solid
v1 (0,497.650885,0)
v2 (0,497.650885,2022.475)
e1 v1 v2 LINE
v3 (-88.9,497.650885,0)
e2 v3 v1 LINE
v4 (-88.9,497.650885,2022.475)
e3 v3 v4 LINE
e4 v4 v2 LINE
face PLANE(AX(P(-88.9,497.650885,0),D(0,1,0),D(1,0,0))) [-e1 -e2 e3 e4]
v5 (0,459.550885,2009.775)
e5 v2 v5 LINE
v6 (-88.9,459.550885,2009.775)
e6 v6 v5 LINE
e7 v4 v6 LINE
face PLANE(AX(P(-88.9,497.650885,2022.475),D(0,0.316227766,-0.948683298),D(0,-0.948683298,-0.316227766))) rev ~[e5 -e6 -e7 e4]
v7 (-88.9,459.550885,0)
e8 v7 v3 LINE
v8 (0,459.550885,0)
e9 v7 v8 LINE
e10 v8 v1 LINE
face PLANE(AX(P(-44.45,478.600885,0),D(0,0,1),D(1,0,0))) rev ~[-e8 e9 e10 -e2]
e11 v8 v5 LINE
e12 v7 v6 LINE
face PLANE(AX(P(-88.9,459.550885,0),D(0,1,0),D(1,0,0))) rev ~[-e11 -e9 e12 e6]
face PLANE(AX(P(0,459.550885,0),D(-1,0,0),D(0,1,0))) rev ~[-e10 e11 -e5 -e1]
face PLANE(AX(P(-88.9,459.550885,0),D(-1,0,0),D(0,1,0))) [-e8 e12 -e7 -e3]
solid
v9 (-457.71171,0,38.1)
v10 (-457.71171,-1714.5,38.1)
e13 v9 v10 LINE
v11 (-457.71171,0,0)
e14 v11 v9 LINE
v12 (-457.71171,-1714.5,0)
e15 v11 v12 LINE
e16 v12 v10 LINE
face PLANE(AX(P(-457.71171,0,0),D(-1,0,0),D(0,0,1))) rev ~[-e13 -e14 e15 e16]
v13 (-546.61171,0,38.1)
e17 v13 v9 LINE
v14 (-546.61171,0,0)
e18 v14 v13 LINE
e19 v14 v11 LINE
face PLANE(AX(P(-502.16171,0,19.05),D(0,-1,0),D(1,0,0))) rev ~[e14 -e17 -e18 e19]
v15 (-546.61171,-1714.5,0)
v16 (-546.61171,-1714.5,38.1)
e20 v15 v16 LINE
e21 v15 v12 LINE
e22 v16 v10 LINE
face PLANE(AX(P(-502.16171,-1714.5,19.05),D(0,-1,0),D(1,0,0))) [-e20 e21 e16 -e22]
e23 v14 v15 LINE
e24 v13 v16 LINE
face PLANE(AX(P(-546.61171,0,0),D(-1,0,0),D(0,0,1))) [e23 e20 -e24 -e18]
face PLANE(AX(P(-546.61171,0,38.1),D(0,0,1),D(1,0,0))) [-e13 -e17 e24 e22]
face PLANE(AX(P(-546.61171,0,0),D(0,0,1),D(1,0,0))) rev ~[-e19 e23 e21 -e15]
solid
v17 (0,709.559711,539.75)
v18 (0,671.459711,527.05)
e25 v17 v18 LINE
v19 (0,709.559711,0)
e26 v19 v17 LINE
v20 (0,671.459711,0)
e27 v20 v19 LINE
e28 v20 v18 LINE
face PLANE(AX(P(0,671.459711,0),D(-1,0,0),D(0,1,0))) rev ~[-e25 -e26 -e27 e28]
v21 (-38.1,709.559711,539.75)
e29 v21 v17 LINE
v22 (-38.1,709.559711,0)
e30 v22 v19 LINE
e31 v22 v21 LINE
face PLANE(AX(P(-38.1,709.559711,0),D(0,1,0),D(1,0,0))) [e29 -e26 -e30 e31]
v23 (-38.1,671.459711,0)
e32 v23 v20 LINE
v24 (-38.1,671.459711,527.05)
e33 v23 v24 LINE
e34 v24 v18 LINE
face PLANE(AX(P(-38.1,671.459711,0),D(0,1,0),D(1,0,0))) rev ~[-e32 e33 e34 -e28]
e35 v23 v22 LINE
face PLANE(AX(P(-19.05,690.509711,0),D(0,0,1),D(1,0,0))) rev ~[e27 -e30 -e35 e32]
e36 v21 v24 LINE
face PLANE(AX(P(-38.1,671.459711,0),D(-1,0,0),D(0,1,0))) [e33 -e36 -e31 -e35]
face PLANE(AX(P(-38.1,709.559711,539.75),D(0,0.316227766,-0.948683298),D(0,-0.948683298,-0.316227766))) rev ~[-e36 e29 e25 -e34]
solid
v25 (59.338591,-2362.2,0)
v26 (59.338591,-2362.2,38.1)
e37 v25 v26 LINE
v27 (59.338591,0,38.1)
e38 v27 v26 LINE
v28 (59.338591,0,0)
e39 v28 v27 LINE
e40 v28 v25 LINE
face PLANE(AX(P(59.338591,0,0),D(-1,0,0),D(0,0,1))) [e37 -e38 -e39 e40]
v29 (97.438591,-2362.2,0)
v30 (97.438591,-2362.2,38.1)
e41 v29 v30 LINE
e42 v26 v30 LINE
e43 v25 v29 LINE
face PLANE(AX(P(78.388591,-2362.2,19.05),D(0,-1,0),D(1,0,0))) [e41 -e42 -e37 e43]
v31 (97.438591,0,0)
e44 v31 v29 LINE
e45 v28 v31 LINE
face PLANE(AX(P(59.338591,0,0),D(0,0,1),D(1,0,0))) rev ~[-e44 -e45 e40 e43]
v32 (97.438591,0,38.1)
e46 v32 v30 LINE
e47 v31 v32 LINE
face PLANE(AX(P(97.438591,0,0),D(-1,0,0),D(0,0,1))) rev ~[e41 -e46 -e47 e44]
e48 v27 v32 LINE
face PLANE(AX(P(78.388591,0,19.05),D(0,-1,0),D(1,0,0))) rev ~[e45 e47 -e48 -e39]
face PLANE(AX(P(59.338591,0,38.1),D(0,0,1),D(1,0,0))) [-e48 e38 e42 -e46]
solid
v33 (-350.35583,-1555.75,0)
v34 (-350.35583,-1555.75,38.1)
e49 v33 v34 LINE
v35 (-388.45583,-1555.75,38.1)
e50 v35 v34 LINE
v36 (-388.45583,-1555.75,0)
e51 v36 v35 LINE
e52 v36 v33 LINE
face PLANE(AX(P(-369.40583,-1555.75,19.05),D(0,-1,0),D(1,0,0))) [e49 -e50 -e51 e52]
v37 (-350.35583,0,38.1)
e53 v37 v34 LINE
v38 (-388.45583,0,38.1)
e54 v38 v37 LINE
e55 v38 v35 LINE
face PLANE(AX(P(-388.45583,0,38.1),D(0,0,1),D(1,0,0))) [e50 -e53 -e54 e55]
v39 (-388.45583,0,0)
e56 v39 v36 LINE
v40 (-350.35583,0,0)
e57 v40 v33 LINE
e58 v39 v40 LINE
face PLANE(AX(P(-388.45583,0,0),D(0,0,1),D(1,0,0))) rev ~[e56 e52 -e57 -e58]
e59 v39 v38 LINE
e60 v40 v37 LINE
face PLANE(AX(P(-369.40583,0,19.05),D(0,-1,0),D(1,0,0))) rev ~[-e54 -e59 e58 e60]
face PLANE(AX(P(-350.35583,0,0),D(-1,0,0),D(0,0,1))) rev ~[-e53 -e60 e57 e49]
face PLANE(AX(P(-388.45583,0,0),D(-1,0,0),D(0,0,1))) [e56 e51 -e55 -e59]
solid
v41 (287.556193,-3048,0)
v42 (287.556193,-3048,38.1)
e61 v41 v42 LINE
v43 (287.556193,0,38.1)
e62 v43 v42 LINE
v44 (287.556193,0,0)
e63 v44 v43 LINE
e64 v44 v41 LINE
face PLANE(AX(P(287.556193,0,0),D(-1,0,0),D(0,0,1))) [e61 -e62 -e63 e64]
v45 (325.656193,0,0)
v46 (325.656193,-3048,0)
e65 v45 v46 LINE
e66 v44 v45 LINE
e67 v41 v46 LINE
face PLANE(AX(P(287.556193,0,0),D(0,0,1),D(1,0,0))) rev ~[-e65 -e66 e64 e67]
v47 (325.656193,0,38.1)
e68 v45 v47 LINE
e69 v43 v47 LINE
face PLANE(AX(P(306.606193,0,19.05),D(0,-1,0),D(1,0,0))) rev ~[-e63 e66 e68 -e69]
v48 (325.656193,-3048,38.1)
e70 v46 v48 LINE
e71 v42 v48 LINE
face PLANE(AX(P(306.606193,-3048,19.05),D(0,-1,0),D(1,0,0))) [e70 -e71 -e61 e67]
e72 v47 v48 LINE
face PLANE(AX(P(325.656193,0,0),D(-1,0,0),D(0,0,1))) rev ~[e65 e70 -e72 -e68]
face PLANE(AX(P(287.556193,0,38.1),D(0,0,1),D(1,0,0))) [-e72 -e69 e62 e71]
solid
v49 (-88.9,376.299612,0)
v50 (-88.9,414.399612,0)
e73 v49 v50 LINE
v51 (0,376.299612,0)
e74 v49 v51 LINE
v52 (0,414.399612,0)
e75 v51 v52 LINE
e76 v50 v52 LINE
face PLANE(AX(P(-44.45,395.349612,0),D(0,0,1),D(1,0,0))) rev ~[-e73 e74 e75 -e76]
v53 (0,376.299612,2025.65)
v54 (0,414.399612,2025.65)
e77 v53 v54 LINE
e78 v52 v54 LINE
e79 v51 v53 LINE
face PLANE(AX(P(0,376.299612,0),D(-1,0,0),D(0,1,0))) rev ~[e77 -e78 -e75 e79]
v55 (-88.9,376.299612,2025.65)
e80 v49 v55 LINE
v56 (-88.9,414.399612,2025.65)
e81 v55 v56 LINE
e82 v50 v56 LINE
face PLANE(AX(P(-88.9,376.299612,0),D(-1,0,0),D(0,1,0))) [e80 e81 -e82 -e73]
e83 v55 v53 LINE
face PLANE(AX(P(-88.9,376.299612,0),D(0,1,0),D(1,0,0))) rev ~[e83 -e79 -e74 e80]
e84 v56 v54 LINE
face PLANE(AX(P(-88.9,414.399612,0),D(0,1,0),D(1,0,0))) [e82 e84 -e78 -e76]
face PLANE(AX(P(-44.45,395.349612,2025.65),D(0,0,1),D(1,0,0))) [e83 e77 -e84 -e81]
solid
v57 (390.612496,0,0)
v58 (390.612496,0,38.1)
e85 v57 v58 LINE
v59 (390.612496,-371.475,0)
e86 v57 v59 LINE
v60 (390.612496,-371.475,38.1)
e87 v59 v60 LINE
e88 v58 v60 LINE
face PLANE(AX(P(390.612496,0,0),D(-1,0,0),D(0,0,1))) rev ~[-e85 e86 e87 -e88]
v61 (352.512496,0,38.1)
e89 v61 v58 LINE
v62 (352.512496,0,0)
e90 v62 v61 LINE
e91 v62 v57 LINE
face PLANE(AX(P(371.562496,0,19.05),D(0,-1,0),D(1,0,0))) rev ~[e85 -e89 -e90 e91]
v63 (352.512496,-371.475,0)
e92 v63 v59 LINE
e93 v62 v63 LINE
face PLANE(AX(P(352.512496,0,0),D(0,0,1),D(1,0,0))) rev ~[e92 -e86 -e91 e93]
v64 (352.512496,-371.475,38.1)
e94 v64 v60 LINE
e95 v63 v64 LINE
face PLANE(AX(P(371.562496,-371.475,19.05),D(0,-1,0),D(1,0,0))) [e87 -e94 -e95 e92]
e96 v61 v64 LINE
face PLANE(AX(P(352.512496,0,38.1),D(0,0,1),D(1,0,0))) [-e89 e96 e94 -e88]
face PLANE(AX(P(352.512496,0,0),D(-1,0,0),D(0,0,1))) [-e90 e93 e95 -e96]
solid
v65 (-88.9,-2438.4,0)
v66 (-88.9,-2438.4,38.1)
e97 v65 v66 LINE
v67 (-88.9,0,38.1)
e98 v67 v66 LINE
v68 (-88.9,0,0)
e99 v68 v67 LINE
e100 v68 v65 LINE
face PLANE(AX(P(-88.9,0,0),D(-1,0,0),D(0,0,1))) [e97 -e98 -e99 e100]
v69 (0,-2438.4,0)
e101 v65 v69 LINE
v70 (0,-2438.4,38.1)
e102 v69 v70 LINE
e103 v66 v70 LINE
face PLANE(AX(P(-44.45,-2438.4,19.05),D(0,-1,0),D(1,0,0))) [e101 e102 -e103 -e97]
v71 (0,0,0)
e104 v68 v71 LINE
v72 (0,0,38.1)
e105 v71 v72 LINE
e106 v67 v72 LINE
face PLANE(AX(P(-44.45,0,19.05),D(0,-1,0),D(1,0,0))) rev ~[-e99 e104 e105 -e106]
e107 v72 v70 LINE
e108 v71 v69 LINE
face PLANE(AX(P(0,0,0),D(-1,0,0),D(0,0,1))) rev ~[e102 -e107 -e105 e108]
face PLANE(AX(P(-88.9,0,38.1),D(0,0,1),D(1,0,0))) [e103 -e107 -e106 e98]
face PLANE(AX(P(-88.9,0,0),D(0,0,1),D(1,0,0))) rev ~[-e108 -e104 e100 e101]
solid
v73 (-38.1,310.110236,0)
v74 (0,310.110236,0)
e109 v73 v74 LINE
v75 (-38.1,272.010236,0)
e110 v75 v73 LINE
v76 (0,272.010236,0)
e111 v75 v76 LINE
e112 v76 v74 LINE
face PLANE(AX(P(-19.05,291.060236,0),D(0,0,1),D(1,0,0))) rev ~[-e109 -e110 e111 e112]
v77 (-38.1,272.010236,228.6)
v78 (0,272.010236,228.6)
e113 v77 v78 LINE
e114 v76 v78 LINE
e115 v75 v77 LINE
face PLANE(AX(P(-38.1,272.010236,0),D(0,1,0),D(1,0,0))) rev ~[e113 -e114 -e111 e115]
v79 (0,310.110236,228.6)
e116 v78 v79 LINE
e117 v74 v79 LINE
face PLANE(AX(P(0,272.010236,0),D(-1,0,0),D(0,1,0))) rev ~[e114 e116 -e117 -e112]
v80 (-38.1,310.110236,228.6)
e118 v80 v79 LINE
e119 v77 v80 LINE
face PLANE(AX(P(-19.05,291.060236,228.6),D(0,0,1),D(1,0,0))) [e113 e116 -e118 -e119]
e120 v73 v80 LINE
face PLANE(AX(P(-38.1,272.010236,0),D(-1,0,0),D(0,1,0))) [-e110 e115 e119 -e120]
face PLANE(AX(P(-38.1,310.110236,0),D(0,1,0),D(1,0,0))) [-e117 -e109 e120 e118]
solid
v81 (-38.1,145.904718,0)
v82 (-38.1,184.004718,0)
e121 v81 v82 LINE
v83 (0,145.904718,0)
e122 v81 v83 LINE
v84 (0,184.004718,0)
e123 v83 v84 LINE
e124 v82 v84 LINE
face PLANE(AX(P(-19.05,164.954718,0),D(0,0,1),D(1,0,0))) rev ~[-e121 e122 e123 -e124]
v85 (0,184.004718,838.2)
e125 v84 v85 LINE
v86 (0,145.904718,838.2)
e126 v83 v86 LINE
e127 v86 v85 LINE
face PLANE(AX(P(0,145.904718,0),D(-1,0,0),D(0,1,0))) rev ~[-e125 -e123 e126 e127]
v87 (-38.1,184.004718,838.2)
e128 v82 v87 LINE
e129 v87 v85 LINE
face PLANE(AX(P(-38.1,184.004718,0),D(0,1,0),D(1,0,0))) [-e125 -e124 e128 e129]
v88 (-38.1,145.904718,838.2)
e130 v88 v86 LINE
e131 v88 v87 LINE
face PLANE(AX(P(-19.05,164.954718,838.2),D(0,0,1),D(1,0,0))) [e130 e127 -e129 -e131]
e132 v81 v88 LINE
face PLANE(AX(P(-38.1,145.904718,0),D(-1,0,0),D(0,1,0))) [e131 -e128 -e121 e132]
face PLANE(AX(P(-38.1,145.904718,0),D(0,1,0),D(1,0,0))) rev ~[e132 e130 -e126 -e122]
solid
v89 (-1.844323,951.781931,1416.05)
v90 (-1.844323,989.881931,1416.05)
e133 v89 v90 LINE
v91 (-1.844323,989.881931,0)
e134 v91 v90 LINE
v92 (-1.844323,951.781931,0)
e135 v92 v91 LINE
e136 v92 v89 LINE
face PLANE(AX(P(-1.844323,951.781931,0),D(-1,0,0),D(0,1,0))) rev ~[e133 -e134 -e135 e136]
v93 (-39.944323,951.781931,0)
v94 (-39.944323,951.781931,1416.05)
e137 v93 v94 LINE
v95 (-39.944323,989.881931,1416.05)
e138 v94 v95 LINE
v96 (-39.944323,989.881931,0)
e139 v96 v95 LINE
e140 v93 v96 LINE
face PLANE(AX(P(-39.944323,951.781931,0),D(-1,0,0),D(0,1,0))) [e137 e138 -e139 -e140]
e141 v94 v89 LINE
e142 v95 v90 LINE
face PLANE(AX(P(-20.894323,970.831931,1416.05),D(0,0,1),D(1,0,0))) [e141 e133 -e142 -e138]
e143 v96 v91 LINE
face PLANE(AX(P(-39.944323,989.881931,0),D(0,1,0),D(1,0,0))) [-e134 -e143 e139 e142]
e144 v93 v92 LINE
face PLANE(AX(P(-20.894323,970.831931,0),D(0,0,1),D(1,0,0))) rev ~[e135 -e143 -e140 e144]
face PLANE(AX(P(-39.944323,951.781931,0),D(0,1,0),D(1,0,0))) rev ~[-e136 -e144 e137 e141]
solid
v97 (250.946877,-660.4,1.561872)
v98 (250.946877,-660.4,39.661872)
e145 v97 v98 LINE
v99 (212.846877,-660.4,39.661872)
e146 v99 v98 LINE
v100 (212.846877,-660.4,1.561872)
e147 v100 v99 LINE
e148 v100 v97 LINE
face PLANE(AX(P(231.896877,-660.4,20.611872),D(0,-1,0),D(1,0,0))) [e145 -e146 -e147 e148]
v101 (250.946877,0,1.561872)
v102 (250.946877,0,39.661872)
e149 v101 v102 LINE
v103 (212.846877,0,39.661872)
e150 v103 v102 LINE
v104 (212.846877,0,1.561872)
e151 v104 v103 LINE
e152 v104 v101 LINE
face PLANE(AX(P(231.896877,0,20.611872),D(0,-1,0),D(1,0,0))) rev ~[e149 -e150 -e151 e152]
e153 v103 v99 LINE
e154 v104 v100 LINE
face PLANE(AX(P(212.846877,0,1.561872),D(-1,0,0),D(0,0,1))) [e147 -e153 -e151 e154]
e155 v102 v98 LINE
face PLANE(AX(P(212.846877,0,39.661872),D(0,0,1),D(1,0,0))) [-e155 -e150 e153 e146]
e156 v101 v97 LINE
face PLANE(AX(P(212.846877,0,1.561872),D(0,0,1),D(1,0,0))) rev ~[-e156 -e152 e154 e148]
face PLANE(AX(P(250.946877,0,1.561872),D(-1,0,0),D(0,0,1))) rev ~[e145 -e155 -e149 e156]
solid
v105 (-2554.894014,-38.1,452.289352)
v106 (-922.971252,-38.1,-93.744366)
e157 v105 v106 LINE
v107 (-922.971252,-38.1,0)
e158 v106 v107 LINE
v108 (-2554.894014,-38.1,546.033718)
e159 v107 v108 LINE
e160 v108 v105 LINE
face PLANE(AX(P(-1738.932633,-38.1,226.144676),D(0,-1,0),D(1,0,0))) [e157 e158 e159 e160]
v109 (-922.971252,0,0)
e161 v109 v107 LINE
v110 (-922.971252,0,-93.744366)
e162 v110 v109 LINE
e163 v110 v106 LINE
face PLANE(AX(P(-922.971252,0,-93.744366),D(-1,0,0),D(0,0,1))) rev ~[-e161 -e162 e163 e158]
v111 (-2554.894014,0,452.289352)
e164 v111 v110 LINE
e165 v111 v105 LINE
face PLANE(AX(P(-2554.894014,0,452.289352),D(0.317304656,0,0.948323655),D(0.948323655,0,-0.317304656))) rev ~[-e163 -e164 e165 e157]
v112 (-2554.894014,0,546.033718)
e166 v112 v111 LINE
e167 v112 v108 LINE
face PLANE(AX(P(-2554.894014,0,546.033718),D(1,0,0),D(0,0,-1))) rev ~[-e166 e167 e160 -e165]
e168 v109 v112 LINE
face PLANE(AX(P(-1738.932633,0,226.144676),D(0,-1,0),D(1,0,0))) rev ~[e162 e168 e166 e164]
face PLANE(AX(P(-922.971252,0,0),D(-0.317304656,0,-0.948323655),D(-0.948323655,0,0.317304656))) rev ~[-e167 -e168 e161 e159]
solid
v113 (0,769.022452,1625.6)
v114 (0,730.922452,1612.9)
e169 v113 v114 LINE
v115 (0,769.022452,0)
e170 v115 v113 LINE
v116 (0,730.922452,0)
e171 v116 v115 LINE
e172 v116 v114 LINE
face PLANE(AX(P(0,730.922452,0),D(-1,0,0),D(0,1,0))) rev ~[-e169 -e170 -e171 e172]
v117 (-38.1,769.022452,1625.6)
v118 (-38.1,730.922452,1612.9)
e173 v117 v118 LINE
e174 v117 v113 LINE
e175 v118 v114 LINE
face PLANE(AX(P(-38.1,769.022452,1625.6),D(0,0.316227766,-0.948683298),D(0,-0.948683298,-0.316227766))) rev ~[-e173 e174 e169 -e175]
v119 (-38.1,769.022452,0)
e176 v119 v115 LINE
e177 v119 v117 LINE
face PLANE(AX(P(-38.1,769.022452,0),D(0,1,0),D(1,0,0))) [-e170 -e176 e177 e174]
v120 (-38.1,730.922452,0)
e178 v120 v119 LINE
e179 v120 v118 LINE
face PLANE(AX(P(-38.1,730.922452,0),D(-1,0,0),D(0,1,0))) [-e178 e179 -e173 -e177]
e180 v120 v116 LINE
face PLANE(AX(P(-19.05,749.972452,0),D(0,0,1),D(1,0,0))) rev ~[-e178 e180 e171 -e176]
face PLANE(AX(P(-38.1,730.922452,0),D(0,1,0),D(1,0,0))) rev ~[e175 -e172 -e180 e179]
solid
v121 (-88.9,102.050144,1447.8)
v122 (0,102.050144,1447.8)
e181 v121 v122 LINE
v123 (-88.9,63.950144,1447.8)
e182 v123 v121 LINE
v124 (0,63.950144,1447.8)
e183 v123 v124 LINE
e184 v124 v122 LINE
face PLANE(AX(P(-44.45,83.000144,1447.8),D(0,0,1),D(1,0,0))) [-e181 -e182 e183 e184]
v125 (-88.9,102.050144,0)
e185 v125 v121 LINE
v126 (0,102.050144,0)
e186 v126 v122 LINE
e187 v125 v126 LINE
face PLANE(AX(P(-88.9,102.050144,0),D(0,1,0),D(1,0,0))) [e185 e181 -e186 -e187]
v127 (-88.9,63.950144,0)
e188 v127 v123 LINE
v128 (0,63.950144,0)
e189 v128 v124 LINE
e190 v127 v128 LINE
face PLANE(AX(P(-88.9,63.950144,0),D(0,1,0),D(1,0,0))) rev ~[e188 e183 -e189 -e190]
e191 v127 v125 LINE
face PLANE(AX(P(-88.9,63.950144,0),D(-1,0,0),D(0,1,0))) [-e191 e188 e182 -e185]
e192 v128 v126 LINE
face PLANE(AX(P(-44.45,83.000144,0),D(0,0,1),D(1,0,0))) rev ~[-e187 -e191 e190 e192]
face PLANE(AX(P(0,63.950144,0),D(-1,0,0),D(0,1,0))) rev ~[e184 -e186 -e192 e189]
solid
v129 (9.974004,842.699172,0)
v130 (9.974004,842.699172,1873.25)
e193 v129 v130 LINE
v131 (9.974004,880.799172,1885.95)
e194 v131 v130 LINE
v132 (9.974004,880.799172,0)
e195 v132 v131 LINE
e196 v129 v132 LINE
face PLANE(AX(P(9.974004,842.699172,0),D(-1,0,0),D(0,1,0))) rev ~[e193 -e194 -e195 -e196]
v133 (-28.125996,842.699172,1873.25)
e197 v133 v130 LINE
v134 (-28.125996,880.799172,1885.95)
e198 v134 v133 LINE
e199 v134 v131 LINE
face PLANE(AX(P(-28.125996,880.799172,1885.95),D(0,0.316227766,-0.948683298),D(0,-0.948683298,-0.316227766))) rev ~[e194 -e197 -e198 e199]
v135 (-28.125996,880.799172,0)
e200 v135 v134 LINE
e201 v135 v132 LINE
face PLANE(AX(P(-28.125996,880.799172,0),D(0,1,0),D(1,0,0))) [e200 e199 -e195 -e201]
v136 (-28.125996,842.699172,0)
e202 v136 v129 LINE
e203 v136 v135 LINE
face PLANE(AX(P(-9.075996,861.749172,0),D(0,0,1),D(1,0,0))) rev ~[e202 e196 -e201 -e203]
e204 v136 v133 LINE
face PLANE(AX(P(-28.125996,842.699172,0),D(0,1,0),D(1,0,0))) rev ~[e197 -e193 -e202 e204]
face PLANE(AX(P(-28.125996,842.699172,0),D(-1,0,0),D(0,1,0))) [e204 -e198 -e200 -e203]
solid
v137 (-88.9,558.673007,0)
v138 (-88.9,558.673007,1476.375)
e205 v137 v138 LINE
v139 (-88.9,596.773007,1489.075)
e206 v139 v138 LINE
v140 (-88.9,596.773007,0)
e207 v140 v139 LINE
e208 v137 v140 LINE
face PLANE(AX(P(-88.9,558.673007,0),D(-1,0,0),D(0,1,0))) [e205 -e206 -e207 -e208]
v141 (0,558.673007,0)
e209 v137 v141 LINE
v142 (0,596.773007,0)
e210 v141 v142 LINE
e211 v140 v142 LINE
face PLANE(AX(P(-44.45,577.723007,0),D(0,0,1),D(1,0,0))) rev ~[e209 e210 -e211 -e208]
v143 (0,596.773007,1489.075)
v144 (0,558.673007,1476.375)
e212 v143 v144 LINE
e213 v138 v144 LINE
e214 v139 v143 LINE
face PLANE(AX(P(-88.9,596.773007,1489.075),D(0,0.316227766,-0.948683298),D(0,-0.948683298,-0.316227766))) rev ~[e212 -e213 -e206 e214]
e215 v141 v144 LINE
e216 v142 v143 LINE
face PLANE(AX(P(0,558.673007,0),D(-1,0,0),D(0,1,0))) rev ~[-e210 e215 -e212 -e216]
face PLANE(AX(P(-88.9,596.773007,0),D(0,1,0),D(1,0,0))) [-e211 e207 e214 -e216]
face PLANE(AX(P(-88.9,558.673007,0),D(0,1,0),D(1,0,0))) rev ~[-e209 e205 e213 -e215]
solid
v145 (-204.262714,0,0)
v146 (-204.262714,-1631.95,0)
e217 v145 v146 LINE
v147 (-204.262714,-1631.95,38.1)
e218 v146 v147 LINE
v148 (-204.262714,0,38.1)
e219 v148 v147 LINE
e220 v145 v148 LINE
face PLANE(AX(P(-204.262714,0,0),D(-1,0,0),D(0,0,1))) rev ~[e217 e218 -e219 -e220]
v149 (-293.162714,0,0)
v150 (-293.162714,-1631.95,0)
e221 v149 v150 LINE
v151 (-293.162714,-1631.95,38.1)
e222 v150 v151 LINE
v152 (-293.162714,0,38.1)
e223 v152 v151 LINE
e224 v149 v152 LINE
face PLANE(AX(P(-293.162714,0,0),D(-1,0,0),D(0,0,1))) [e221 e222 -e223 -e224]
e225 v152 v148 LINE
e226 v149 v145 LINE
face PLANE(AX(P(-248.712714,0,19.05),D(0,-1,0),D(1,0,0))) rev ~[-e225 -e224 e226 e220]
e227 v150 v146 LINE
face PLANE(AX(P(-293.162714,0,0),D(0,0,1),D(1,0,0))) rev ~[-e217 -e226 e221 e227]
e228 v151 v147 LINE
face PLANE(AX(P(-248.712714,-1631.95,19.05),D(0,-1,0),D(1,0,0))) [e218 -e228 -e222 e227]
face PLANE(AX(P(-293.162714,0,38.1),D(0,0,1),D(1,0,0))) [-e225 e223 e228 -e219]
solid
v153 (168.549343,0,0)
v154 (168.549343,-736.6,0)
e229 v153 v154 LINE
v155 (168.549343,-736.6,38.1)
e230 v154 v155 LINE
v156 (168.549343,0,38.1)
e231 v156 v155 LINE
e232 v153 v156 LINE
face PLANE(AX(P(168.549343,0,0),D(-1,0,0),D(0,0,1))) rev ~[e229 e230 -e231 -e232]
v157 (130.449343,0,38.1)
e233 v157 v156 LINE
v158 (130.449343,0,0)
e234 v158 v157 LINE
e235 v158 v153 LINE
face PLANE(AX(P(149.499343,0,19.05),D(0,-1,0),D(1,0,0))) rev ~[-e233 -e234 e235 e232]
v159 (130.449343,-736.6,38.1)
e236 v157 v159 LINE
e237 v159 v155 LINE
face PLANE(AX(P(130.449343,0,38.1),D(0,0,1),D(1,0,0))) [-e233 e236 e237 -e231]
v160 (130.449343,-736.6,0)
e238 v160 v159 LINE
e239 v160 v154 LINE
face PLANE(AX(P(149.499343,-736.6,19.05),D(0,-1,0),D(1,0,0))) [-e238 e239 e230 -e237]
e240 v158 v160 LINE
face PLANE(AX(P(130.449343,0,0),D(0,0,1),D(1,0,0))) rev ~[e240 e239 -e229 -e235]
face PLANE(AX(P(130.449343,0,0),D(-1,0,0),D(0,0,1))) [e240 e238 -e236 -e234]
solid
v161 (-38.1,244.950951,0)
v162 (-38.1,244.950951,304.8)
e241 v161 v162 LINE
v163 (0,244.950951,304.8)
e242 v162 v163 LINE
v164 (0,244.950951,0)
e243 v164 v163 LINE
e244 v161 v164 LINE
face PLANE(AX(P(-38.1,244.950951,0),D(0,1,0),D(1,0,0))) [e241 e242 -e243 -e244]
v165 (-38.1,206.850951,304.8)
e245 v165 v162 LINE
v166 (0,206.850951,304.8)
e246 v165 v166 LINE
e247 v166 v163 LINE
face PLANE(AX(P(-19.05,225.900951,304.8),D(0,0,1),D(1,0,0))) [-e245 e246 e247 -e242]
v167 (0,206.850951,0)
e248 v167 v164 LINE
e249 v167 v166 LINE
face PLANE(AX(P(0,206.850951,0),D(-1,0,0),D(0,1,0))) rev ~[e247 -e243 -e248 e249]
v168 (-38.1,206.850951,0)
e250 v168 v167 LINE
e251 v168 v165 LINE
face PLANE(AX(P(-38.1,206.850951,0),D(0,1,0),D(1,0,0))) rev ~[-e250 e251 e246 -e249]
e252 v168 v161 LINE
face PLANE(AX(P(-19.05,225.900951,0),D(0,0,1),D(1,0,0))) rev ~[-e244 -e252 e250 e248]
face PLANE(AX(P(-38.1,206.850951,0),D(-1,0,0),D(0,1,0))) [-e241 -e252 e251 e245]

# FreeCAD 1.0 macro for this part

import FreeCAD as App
import Part
import Sketcher
from FreeCAD import Vector
Q = App.Units.Quantity


def add_polygon(sketch, points):
    """Adds a closed chain of lines whose ends are joined by coincident constraints."""
    first, n = sketch.GeometryCount, len(points)
    for a, b in zip(points, points[1:] + points[:1]):
        sketch.addGeometry(Part.LineSegment(App.Vector(*a, 0), App.Vector(*b, 0)), False)
    for i in range(n):
        sketch.addConstraint(Sketcher.Constraint("Coincident", first + i, 2, first + (i + 1) % n, 1))

doc = App.newDocument("Part")
body = doc.addObject("PartDesign::Body", "Body")

sketch1 = doc.addObject("Sketcher::SketchObject", "Sketch")
body.addObject(sketch1)
sketch1.AttachmentSupport = (doc.XZ_Plane, [""])
sketch1.MapMode = "FlatFace"
add_polygon(sketch1, [(-89, 38), (-89, 0), (0, 0), (0, 38)])
sketch1.addConstraint([
    Sketcher.Constraint("Vertical", 0),
    Sketcher.Constraint("Horizontal", 1),
    Sketcher.Constraint("Vertical", 2),
    Sketcher.Constraint("Horizontal", 3),
    Sketcher.Constraint("Coincident", 1, 2, -1, 1),
    Sketcher.Constraint("DistanceX", 1, 1, 1, 2, Q("3.5 in")),
    Sketcher.Constraint("DistanceY", 0, 2, 0, 1, Q("1.5 in")),
])
pad1 = doc.addObject("PartDesign::Pad", "Pad")
body.addObject(pad1)
pad1.Profile = sketch1
pad1.Length = Q("96 in")
body2 = doc.addObject("PartDesign::Body", "Body001")

sketch2 = doc.addObject("Sketcher::SketchObject", "Sketch001")
body2.addObject(sketch2)
sketch2.AttachmentSupport = (doc.getObject("XY_Plane001"), [""])
sketch2.MapMode = "FlatFace"
add_polygon(sketch2, [(-89, 102), (-89, 64), (0, 64), (0, 102)])
sketch2.addConstraint([
    Sketcher.Constraint("Vertical", 0),
    Sketcher.Constraint("Horizontal", 1),
    Sketcher.Constraint("Vertical", 2),
    Sketcher.Constraint("Horizontal", 3),
    Sketcher.Constraint("PointOnObject", 1, 2, -2),
    Sketcher.Constraint("DistanceX", 1, 1, 1, 2, Q("3.5 in")),
    Sketcher.Constraint("DistanceY", 0, 2, 0, 1, Q("1.5 in")),
    Sketcher.Constraint("DistanceY", -1, 1, 0, 2, 63.950144),
])
pad2 = doc.addObject("PartDesign::Pad", "Pad001")
body2.addObject(pad2)
pad2.Profile = sketch2
pad2.Length = Q("57 in")
body3 = doc.addObject("PartDesign::Body", "Body002")

sketch3 = doc.addObject("Sketcher::SketchObject", "Sketch002")
body3.addObject(sketch3)
sketch3.AttachmentSupport = (doc.getObject("XZ_Plane002"), [""])
sketch3.MapMode = "FlatFace"
add_polygon(sketch3, [(59, 38), (59, 0), (97, 0), (97, 38)])
sketch3.addConstraint([
    Sketcher.Constraint("Vertical", 0),
    Sketcher.Constraint("Horizontal", 1),
    Sketcher.Constraint("Vertical", 2),
    Sketcher.Constraint("Horizontal", 3),
    Sketcher.Constraint("PointOnObject", 0, 2, -1),
    Sketcher.Constraint("Equal", 3, 0),
    Sketcher.Constraint("DistanceX", 1, 1, 1, 2, Q("1.5 in")),
    Sketcher.Constraint("DistanceX", -1, 1, 0, 2, 59.338591),
])
pad3 = doc.addObject("PartDesign::Pad", "Pad002")
body3.addObject(pad3)
pad3.Profile = sketch3
pad3.Length = Q("93 in")
body4 = doc.addObject("PartDesign::Body", "Body003")

sketch4 = doc.addObject("Sketcher::SketchObject", "Sketch003")
body4.addObject(sketch4)
sketch4.AttachmentSupport = (doc.getObject("XY_Plane003"), [""])
sketch4.MapMode = "FlatFace"
add_polygon(sketch4, [(-38, 184), (-38, 146), (0, 146), (0, 184)])
sketch4.addConstraint([
    Sketcher.Constraint("Vertical", 0),
    Sketcher.Constraint("Horizontal", 1),
    Sketcher.Constraint("Vertical", 2),
    Sketcher.Constraint("Horizontal", 3),
    Sketcher.Constraint("PointOnObject", 1, 2, -2),
    Sketcher.Constraint("Equal", 3, 0),
    Sketcher.Constraint("DistanceX", 1, 1, 1, 2, Q("1.5 in")),
    Sketcher.Constraint("DistanceY", -1, 1, 0, 2, 145.904718),
])
pad4 = doc.addObject("PartDesign::Pad", "Pad003")
body4.addObject(pad4)
pad4.Profile = sketch4
pad4.Length = Q("33 in")
body5 = doc.addObject("PartDesign::Body", "Body004")

sketch5 = doc.addObject("Sketcher::SketchObject", "Sketch004")
body5.addObject(sketch5)
sketch5.AttachmentSupport = (doc.getObject("XY_Plane004"), [""])
sketch5.MapMode = "FlatFace"
add_polygon(sketch5, [(-38, 310), (-38, 272), (0, 272), (0, 310)])
sketch5.addConstraint([
    Sketcher.Constraint("Vertical", 0),
    Sketcher.Constraint("Horizontal", 1),
    Sketcher.Constraint("Vertical", 2),
    Sketcher.Constraint("Horizontal", 3),
    Sketcher.Constraint("PointOnObject", 1, 2, -2),
    Sketcher.Constraint("Equal", 3, 0),
    Sketcher.Constraint("DistanceX", 1, 1, 1, 2, Q("1.5 in")),
    Sketcher.Constraint("DistanceY", -1, 1, 0, 2, 272.010236),
])
pad5 = doc.addObject("PartDesign::Pad", "Pad004")
body5.addObject(pad5)
pad5.Profile = sketch5
pad5.Length = Q("9 in")
body6 = doc.addObject("PartDesign::Body", "Body005")

sketch6 = doc.addObject("Sketcher::SketchObject", "Sketch005")
body6.addObject(sketch6)
sketch6.AttachmentSupport = (doc.getObject("XY_Plane005"), [""])
sketch6.MapMode = "FlatFace"
add_polygon(sketch6, [(-38, 245), (-38, 207), (0, 207), (0, 245)])
sketch6.addConstraint([
    Sketcher.Constraint("Vertical", 0),
    Sketcher.Constraint("Horizontal", 1),
    Sketcher.Constraint("Vertical", 2),
    Sketcher.Constraint("Horizontal", 3),
    Sketcher.Constraint("PointOnObject", 1, 2, -2),
    Sketcher.Constraint("Equal", 3, 0),
    Sketcher.Constraint("DistanceX", 1, 1, 1, 2, Q("1.5 in")),
    Sketcher.Constraint("DistanceY", -1, 1, 0, 2, 206.850951),
])
pad6 = doc.addObject("PartDesign::Pad", "Pad005")
body6.addObject(pad6)
pad6.Profile = sketch6
pad6.Length = Q("12 in")
body7 = doc.addObject("PartDesign::Body", "Body006")

sketch7 = doc.addObject("Sketcher::SketchObject", "Sketch006")
body7.addObject(sketch7)
sketch7.AttachmentSupport = (doc.getObject("XY_Plane006"), [""])
sketch7.MapMode = "FlatFace"
add_polygon(sketch7, [(-89, 414), (-89, 376), (0, 376), (0, 414)])
sketch7.addConstraint([
    Sketcher.Constraint("Vertical", 0),
    Sketcher.Constraint("Horizontal", 1),
    Sketcher.Constraint("Vertical", 2),
    Sketcher.Constraint("Horizontal", 3),
    Sketcher.Constraint("PointOnObject", 1, 2, -2),
    Sketcher.Constraint("DistanceX", 1, 1, 1, 2, Q("3.5 in")),
    Sketcher.Constraint("DistanceY", 0, 2, 0, 1, Q("1.5 in")),
    Sketcher.Constraint("DistanceY", -1, 1, 2, 2, 414.399612),
])
pad7 = doc.addObject("PartDesign::Pad", "Pad006")
body7.addObject(pad7)
pad7.Profile = sketch7
pad7.Length = Q("79.75 in")
body8 = doc.addObject("PartDesign::Body", "Body007")

sketch8 = doc.addObject("Sketcher::SketchObject", "Sketch007")
body8.addObject(sketch8)
sketch8.AttachmentSupport = (doc.getObject("XZ_Plane007"), [""])
sketch8.MapMode = "FlatFace"
add_polygon(sketch8, [(-293, 38), (-293, 0), (-204, 0), (-204, 38)])
sketch8.addConstraint([
    Sketcher.Constraint("Vertical", 0),
    Sketcher.Constraint("Horizontal", 1),
    Sketcher.Constraint("Vertical", 2),
    Sketcher.Constraint("Horizontal", 3),
    Sketcher.Constraint("PointOnObject", 0, 2, -1),
    Sketcher.Constraint("DistanceX", 1, 1, 1, 2, Q("3.5 in")),
    Sketcher.Constraint("DistanceY", 0, 2, 0, 1, Q("1.5 in")),
    Sketcher.Constraint("DistanceX", 0, 2, -1, 1, 293.162714),
])
pad8 = doc.addObject("PartDesign::Pad", "Pad007")
body8.addObject(pad8)
pad8.Profile = sketch8
pad8.Length = Q("64.25 in")
body9 = doc.addObject("PartDesign::Body", "Body008")

sketch9 = doc.addObject("Sketcher::SketchObject", "Sketch008")
body9.addObject(sketch9)
sketch9.AttachmentSupport = (doc.getObject("XZ_Plane008"), [""])
sketch9.MapMode = "FlatFace"
add_polygon(sketch9, [(-388, 38), (-388, 0), (-350, 0), (-350, 38)])
sketch9.addConstraint([
    Sketcher.Constraint("Vertical", 0),
    Sketcher.Constraint("Horizontal", 1),
    Sketcher.Constraint("Vertical", 2),
    Sketcher.Constraint("Horizontal", 3),
    Sketcher.Constraint("PointOnObject", 0, 2, -1),
    Sketcher.Constraint("Equal", 3, 0),
    Sketcher.Constraint("DistanceX", 1, 1, 1, 2, Q("1.5 in")),
    Sketcher.Constraint("DistanceX", 0, 2, -1, 1, 388.45583),
])
pad9 = doc.addObject("PartDesign::Pad", "Pad008")
body9.addObject(pad9)
pad9.Profile = sketch9
pad9.Length = Q("61.25 in")
body10 = doc.addObject("PartDesign::Body", "Body009")

sketch10 = doc.addObject("Sketcher::SketchObject", "Sketch009")
body10.addObject(sketch10)
sketch10.AttachmentSupport = (doc.getObject("XY_Plane009"), [""])
sketch10.MapMode = "FlatFace"
add_polygon(sketch10, [(-89, 498), (-89, 460), (0, 460), (0, 498)])
sketch10.addConstraint([
    Sketcher.Constraint("Vertical", 0),
    Sketcher.Constraint("Horizontal", 1),
    Sketcher.Constraint("Vertical", 2),
    Sketcher.Constraint("Horizontal", 3),
    Sketcher.Constraint("PointOnObject", 1, 2, -2),
    Sketcher.Constraint("DistanceX", 1, 1, 1, 2, Q("3.5 in")),
    Sketcher.Constraint("DistanceY", 0, 2, 0, 1, Q("1.5 in")),
    Sketcher.Constraint("DistanceY", -1, 1, 0, 2, 459.550885),
])
pad10 = doc.addObject("PartDesign::Pad", "Pad009")
body10.addObject(pad10)
pad10.Profile = sketch10
pad10.Length = Q("79.625 in")

sketch11 = doc.addObject("Sketcher::SketchObject", "Sketch010")
body10.addObject(sketch11)
sketch11.AttachmentSupport = (doc.getObject("YZ_Plane009"), [""])
sketch11.MapMode = "FlatFace"
sketch11.AttachmentOffset = App.Placement(Vector(0, 0, -3.5 * 25.4), App.Rotation())
add_polygon(sketch11, [(460, 2022), (498, 2022), (460, 2010)])
sketch11.addConstraint([
    Sketcher.Constraint("Horizontal", 0),
    Sketcher.Constraint("Vertical", 2),
    Sketcher.Constraint("DistanceX", 0, 1, 0, 2, Q("1.5 in")),
    Sketcher.Constraint("DistanceY", 2, 1, 2, 2, Q("0.5 in")),
    Sketcher.Constraint("DistanceY", -1, 1, 0, 2, Q("79.625 in")),
    Sketcher.Constraint("DistanceX", -1, 1, 0, 2, 497.650885),
])
pocket1 = doc.addObject("PartDesign::Pocket", "Pocket")
body10.addObject(pocket1)
pocket1.Profile = sketch11
pocket1.Length = Q("3.5 in")
pocket1.Reversed = True
body11 = doc.addObject("PartDesign::Body", "Body010")

sketch12 = doc.addObject("Sketcher::SketchObject", "Sketch011")
body11.addObject(sketch12)
sketch12.AttachmentSupport = (doc.getObject("XY_Plane010"), [""])
sketch12.MapMode = "FlatFace"
add_polygon(sketch12, [(-89, 597), (-89, 559), (0, 559), (0, 597)])
sketch12.addConstraint([
    Sketcher.Constraint("Vertical", 0),
    Sketcher.Constraint("Horizontal", 1),
    Sketcher.Constraint("Vertical", 2),
    Sketcher.Constraint("Horizontal", 3),
    Sketcher.Constraint("PointOnObject", 1, 2, -2),
    Sketcher.Constraint("DistanceX", 1, 1, 1, 2, Q("3.5 in")),
    Sketcher.Constraint("DistanceY", 0, 2, 0, 1, Q("1.5 in")),
    Sketcher.Constraint("DistanceY", -1, 1, 0, 2, 558.673007),
])
pad11 = doc.addObject("PartDesign::Pad", "Pad010")
body11.addObject(pad11)
pad11.Profile = sketch12
pad11.Length = Q("58.625 in")

sketch13 = doc.addObject("Sketcher::SketchObject", "Sketch012")
body11.addObject(sketch13)
sketch13.AttachmentSupport = (doc.getObject("YZ_Plane010"), [""])
sketch13.MapMode = "FlatFace"
sketch13.AttachmentOffset = App.Placement(Vector(0, 0, -3.5 * 25.4), App.Rotation())
add_polygon(sketch13, [(559, 1489), (597, 1489), (559, 1476)])
sketch13.addConstraint([
    Sketcher.Constraint("Horizontal", 0),
    Sketcher.Constraint("Vertical", 2),
    Sketcher.Constraint("DistanceX", 0, 1, 0, 2, Q("1.5 in")),
    Sketcher.Constraint("DistanceY", 2, 1, 2, 2, Q("0.5 in")),
    Sketcher.Constraint("DistanceY", -1, 1, 0, 2, Q("58.625 in")),
    Sketcher.Constraint("DistanceX", -1, 1, 0, 2, 596.773007),
])
pocket2 = doc.addObject("PartDesign::Pocket", "Pocket001")
body11.addObject(pocket2)
pocket2.Profile = sketch13
pocket2.Length = Q("3.5 in")
pocket2.Reversed = True
body12 = doc.addObject("PartDesign::Body", "Body011")

sketch14 = doc.addObject("Sketcher::SketchObject", "Sketch013")
body12.addObject(sketch14)
sketch14.AttachmentSupport = (doc.getObject("XZ_Plane011"), [""])
sketch14.MapMode = "FlatFace"
add_polygon(sketch14, [(-547, 38), (-547, 0), (-458, 0), (-458, 38)])
sketch14.addConstraint([
    Sketcher.Constraint("Vertical", 0),
    Sketcher.Constraint("Horizontal", 1),
    Sketcher.Constraint("Vertical", 2),
    Sketcher.Constraint("Horizontal", 3),
    Sketcher.Constraint("PointOnObject", 0, 2, -1),
    Sketcher.Constraint("DistanceX", 1, 1, 1, 2, Q("3.5 in")),
    Sketcher.Constraint("DistanceY", 0, 2, 0, 1, Q("1.5 in")),
    Sketcher.Constraint("DistanceX", 0, 2, -1, 1, 546.61171),
])
pad12 = doc.addObject("PartDesign::Pad", "Pad011")
body12.addObject(pad12)
pad12.Profile = sketch14
pad12.Length = Q("67.5 in")
body13 = doc.addObject("PartDesign::Body", "Body012")

sketch15 = doc.addObject("Sketcher::SketchObject", "Sketch014")
body13.addObject(sketch15)
sketch15.AttachmentSupport = (doc.getObject("XY_Plane012"), [""])
sketch15.MapMode = "FlatFace"
add_polygon(sketch15, [(-38, 710), (-38, 671), (0, 671), (0, 710)])
sketch15.addConstraint([
    Sketcher.Constraint("Vertical", 0),
    Sketcher.Constraint("Horizontal", 1),
    Sketcher.Constraint("Vertical", 2),
    Sketcher.Constraint("Horizontal", 3),
    Sketcher.Constraint("PointOnObject", 1, 2, -2),
    Sketcher.Constraint("Equal", 3, 0),
    Sketcher.Constraint("DistanceX", 1, 1, 1, 2, Q("1.5 in")),
    Sketcher.Constraint("DistanceY", -1, 1, 0, 2, 671.459711),
])
pad13 = doc.addObject("PartDesign::Pad", "Pad012")
body13.addObject(pad13)
pad13.Profile = sketch15
pad13.Length = Q("21.25 in")

sketch16 = doc.addObject("Sketcher::SketchObject", "Sketch015")
body13.addObject(sketch16)
sketch16.AttachmentSupport = (doc.getObject("YZ_Plane012"), [""])
sketch16.MapMode = "FlatFace"
sketch16.AttachmentOffset = App.Placement(Vector(0, 0, -1.5 * 25.4), App.Rotation())
add_polygon(sketch16, [(671, 540), (710, 540), (671, 527)])
sketch16.addConstraint([
    Sketcher.Constraint("Horizontal", 0),
    Sketcher.Constraint("Vertical", 2),
    Sketcher.Constraint("DistanceX", 0, 1, 0, 2, Q("1.5 in")),
    Sketcher.Constraint("DistanceY", 2, 1, 2, 2, Q("0.5 in")),
    Sketcher.Constraint("DistanceY", -1, 1, 0, 2, Q("21.25 in")),
    Sketcher.Constraint("DistanceX", -1, 1, 0, 2, 709.559711),
])
pocket3 = doc.addObject("PartDesign::Pocket", "Pocket002")
body13.addObject(pocket3)
pocket3.Profile = sketch16
pocket3.Length = Q("1.5 in")
pocket3.Reversed = True
body14 = doc.addObject("PartDesign::Body", "Body013")

sketch17 = doc.addObject("Sketcher::SketchObject", "Sketch016")
body14.addObject(sketch17)
sketch17.AttachmentSupport = (doc.getObject("XZ_Plane013"), [""])
sketch17.MapMode = "FlatFace"
add_polygon(sketch17, [(-923, -94), (-923, 0), (-2555, 546), (-2555, 452)])
sketch17.addConstraint([
    Sketcher.Constraint("Vertical", 0),
    Sketcher.Constraint("Vertical", 2),
    Sketcher.Constraint("PointOnObject", 0, 2, -1),
    Sketcher.Constraint("Parallel", 1, 3),
    Sketcher.Constraint("Angle", 1, Q("161.5 deg")),
    Sketcher.Constraint("Distance", 1, Q("67.75 in")),
    Sketcher.Constraint("DistanceY", 0, 1, 0, 2, 93.744366),
    Sketcher.Constraint("DistanceX", 0, 2, -1, 1, 922.971252),
])
pad14 = doc.addObject("PartDesign::Pad", "Pad013")
body14.addObject(pad14)
pad14.Profile = sketch17
pad14.Length = Q("1.5 in")
body15 = doc.addObject("PartDesign::Body", "Body014")

sketch18 = doc.addObject("Sketcher::SketchObject", "Sketch017")
body15.addObject(sketch18)
sketch18.AttachmentSupport = (doc.getObject("XY_Plane014"), [""])
sketch18.MapMode = "FlatFace"
add_polygon(sketch18, [(-38, 769), (-38, 731), (0, 731), (0, 769)])
sketch18.addConstraint([
    Sketcher.Constraint("Vertical", 0),
    Sketcher.Constraint("Horizontal", 1),
    Sketcher.Constraint("Vertical", 2),
    Sketcher.Constraint("Horizontal", 3),
    Sketcher.Constraint("PointOnObject", 1, 2, -2),
    Sketcher.Constraint("Equal", 3, 0),
    Sketcher.Constraint("DistanceX", 1, 1, 1, 2, Q("1.5 in")),
    Sketcher.Constraint("DistanceY", -1, 1, 0, 2, 730.922452),
])
pad15 = doc.addObject("PartDesign::Pad", "Pad014")
body15.addObject(pad15)
pad15.Profile = sketch18
pad15.Length = Q("64 in")

sketch19 = doc.addObject("Sketcher::SketchObject", "Sketch018")
body15.addObject(sketch19)
sketch19.AttachmentSupport = (doc.getObject("YZ_Plane014"), [""])
sketch19.MapMode = "FlatFace"
sketch19.AttachmentOffset = App.Placement(Vector(0, 0, -1.5 * 25.4), App.Rotation())
add_polygon(sketch19, [(731, 1626), (769, 1626), (731, 1613)])
sketch19.addConstraint([
    Sketcher.Constraint("Horizontal", 0),
    Sketcher.Constraint("Vertical", 2),
    Sketcher.Constraint("DistanceX", 0, 1, 0, 2, Q("1.5 in")),
    Sketcher.Constraint("DistanceY", 2, 1, 2, 2, Q("0.5 in")),
    Sketcher.Constraint("DistanceY", -1, 1, 0, 2, Q("64 in")),
    Sketcher.Constraint("DistanceX", -1, 1, 0, 2, 769.022452),
])
pocket4 = doc.addObject("PartDesign::Pocket", "Pocket003")
body15.addObject(pocket4)
pocket4.Profile = sketch19
pocket4.Length = Q("1.5 in")
pocket4.Reversed = True
body16 = doc.addObject("PartDesign::Body", "Body015")

sketch20 = doc.addObject("Sketcher::SketchObject", "Sketch019")
body16.addObject(sketch20)
sketch20.AttachmentSupport = (doc.getObject("XY_Plane015"), [""])
sketch20.MapMode = "FlatFace"
add_polygon(sketch20, [(-28, 881), (-28, 843), (10, 843), (10, 881)])
sketch20.addConstraint([
    Sketcher.Constraint("Vertical", 0),
    Sketcher.Constraint("Horizontal", 1),
    Sketcher.Constraint("Vertical", 2),
    Sketcher.Constraint("Horizontal", 3),
    Sketcher.Constraint("Equal", 3, 0),
    Sketcher.Constraint("DistanceX", 1, 1, 1, 2, Q("1.5 in")),
    Sketcher.Constraint("DistanceY", -1, 1, 0, 2, 842.699172),
    Sketcher.Constraint("DistanceX", 0, 2, -1, 1, 28.125996),
])
pad16 = doc.addObject("PartDesign::Pad", "Pad015")
body16.addObject(pad16)
pad16.Profile = sketch20
pad16.Length = Q("74.25 in")

sketch21 = doc.addObject("Sketcher::SketchObject", "Sketch020")
body16.addObject(sketch21)
sketch21.AttachmentSupport = (doc.getObject("YZ_Plane015"), [""])
sketch21.MapMode = "FlatFace"
sketch21.AttachmentOffset = App.Placement(Vector(0, 0, -28.125996), App.Rotation())
add_polygon(sketch21, [(843, 1886), (881, 1886), (843, 1873)])
sketch21.addConstraint([
    Sketcher.Constraint("Horizontal", 0),
    Sketcher.Constraint("Vertical", 2),
    Sketcher.Constraint("DistanceX", 0, 1, 0, 2, Q("1.5 in")),
    Sketcher.Constraint("DistanceY", 2, 1, 2, 2, Q("0.5 in")),
    Sketcher.Constraint("DistanceY", -1, 1, 0, 2, Q("74.25 in")),
    Sketcher.Constraint("DistanceX", -1, 1, 0, 2, 880.799172),
])
pocket5 = doc.addObject("PartDesign::Pocket", "Pocket004")
body16.addObject(pocket5)
pocket5.Profile = sketch21
pocket5.Length = Q("1.5 in")
pocket5.Reversed = True
body17 = doc.addObject("PartDesign::Body", "Body016")

sketch22 = doc.addObject("Sketcher::SketchObject", "Sketch021")
body17.addObject(sketch22)
sketch22.AttachmentSupport = (doc.getObject("XZ_Plane016"), [""])
sketch22.MapMode = "FlatFace"
add_polygon(sketch22, [(130, 38), (130, 0), (169, 0), (169, 38)])
sketch22.addConstraint([
    Sketcher.Constraint("Vertical", 0),
    Sketcher.Constraint("Horizontal", 1),
    Sketcher.Constraint("Vertical", 2),
    Sketcher.Constraint("Horizontal", 3),
    Sketcher.Constraint("PointOnObject", 0, 2, -1),
    Sketcher.Constraint("Equal", 3, 0),
    Sketcher.Constraint("DistanceX", 1, 1, 1, 2, Q("1.5 in")),
    Sketcher.Constraint("DistanceX", -1, 1, 0, 2, 130.449343),
])
pad17 = doc.addObject("PartDesign::Pad", "Pad016")
body17.addObject(pad17)
pad17.Profile = sketch22
pad17.Length = Q("29 in")
body18 = doc.addObject("PartDesign::Body", "Body017")

sketch23 = doc.addObject("Sketcher::SketchObject", "Sketch022")
body18.addObject(sketch23)
sketch23.AttachmentSupport = (doc.getObject("XZ_Plane017"), [""])
sketch23.MapMode = "FlatFace"
add_polygon(sketch23, [(213, 40), (213, 2), (251, 2), (251, 40)])
sketch23.addConstraint([
    Sketcher.Constraint("Vertical", 0),
    Sketcher.Constraint("Horizontal", 1),
    Sketcher.Constraint("Vertical", 2),
    Sketcher.Constraint("Horizontal", 3),
    Sketcher.Constraint("Equal", 3, 0),
    Sketcher.Constraint("DistanceX", 1, 1, 1, 2, Q("1.5 in")),
    Sketcher.Constraint("DistanceY", -1, 1, 0, 2, 1.561872),
    Sketcher.Constraint("DistanceX", -1, 1, 0, 2, 212.846877),
])
pad18 = doc.addObject("PartDesign::Pad", "Pad017")
body18.addObject(pad18)
pad18.Profile = sketch23
pad18.Length = Q("26 in")
body19 = doc.addObject("PartDesign::Body", "Body018")

sketch24 = doc.addObject("Sketcher::SketchObject", "Sketch023")
body19.addObject(sketch24)
sketch24.AttachmentSupport = (doc.getObject("XY_Plane018"), [""])
sketch24.MapMode = "FlatFace"
add_polygon(sketch24, [(-40, 990), (-40, 952), (-2, 952), (-2, 990)])
sketch24.addConstraint([
    Sketcher.Constraint("Vertical", 0),
    Sketcher.Constraint("Horizontal", 1),
    Sketcher.Constraint("Vertical", 2),
    Sketcher.Constraint("Horizontal", 3),
    Sketcher.Constraint("Equal", 3, 0),
    Sketcher.Constraint("DistanceX", 1, 1, 1, 2, Q("1.5 in")),
    Sketcher.Constraint("DistanceY", -1, 1, 0, 2, 951.781931),
    Sketcher.Constraint("DistanceX", 0, 2, -1, 1, 39.944323),
])
pad19 = doc.addObject("PartDesign::Pad", "Pad018")
body19.addObject(pad19)
pad19.Profile = sketch24
pad19.Length = Q("55.75 in")
body20 = doc.addObject("PartDesign::Body", "Body019")

sketch25 = doc.addObject("Sketcher::SketchObject", "Sketch024")
body20.addObject(sketch25)
sketch25.AttachmentSupport = (doc.getObject("XZ_Plane019"), [""])
sketch25.MapMode = "FlatFace"
add_polygon(sketch25, [(288, 38), (288, 0), (326, 0), (326, 38)])
sketch25.addConstraint([
    Sketcher.Constraint("Vertical", 0),
    Sketcher.Constraint("Horizontal", 1),
    Sketcher.Constraint("Vertical", 2),
    Sketcher.Constraint("Horizontal", 3),
    Sketcher.Constraint("PointOnObject", 0, 2, -1),
    Sketcher.Constraint("Equal", 3, 0),
    Sketcher.Constraint("DistanceX", 1, 1, 1, 2, Q("1.5 in")),
    Sketcher.Constraint("DistanceX", -1, 1, 0, 2, 287.556193),
])
pad20 = doc.addObject("PartDesign::Pad", "Pad019")
body20.addObject(pad20)
pad20.Profile = sketch25
pad20.Length = Q("120 in")
body21 = doc.addObject("PartDesign::Body", "Body020")

sketch26 = doc.addObject("Sketcher::SketchObject", "Sketch025")
body21.addObject(sketch26)
sketch26.AttachmentSupport = (doc.getObject("XZ_Plane020"), [""])
sketch26.MapMode = "FlatFace"
add_polygon(sketch26, [(353, 38), (353, 0), (391, 0), (391, 38)])
sketch26.addConstraint([
    Sketcher.Constraint("Vertical", 0),
    Sketcher.Constraint("Horizontal", 1),
    Sketcher.Constraint("Vertical", 2),
    Sketcher.Constraint("Horizontal", 3),
    Sketcher.Constraint("PointOnObject", 0, 2, -1),
    Sketcher.Constraint("Equal", 3, 0),
    Sketcher.Constraint("DistanceX", 1, 1, 1, 2, Q("1.5 in")),
    Sketcher.Constraint("DistanceX", -1, 1, 0, 2, 352.512496),
])
pad21 = doc.addObject("PartDesign::Pad", "Pad020")
body21.addObject(pad21)
pad21.Profile = sketch26
pad21.Length = Q("14.625 in")

doc.recompute()
